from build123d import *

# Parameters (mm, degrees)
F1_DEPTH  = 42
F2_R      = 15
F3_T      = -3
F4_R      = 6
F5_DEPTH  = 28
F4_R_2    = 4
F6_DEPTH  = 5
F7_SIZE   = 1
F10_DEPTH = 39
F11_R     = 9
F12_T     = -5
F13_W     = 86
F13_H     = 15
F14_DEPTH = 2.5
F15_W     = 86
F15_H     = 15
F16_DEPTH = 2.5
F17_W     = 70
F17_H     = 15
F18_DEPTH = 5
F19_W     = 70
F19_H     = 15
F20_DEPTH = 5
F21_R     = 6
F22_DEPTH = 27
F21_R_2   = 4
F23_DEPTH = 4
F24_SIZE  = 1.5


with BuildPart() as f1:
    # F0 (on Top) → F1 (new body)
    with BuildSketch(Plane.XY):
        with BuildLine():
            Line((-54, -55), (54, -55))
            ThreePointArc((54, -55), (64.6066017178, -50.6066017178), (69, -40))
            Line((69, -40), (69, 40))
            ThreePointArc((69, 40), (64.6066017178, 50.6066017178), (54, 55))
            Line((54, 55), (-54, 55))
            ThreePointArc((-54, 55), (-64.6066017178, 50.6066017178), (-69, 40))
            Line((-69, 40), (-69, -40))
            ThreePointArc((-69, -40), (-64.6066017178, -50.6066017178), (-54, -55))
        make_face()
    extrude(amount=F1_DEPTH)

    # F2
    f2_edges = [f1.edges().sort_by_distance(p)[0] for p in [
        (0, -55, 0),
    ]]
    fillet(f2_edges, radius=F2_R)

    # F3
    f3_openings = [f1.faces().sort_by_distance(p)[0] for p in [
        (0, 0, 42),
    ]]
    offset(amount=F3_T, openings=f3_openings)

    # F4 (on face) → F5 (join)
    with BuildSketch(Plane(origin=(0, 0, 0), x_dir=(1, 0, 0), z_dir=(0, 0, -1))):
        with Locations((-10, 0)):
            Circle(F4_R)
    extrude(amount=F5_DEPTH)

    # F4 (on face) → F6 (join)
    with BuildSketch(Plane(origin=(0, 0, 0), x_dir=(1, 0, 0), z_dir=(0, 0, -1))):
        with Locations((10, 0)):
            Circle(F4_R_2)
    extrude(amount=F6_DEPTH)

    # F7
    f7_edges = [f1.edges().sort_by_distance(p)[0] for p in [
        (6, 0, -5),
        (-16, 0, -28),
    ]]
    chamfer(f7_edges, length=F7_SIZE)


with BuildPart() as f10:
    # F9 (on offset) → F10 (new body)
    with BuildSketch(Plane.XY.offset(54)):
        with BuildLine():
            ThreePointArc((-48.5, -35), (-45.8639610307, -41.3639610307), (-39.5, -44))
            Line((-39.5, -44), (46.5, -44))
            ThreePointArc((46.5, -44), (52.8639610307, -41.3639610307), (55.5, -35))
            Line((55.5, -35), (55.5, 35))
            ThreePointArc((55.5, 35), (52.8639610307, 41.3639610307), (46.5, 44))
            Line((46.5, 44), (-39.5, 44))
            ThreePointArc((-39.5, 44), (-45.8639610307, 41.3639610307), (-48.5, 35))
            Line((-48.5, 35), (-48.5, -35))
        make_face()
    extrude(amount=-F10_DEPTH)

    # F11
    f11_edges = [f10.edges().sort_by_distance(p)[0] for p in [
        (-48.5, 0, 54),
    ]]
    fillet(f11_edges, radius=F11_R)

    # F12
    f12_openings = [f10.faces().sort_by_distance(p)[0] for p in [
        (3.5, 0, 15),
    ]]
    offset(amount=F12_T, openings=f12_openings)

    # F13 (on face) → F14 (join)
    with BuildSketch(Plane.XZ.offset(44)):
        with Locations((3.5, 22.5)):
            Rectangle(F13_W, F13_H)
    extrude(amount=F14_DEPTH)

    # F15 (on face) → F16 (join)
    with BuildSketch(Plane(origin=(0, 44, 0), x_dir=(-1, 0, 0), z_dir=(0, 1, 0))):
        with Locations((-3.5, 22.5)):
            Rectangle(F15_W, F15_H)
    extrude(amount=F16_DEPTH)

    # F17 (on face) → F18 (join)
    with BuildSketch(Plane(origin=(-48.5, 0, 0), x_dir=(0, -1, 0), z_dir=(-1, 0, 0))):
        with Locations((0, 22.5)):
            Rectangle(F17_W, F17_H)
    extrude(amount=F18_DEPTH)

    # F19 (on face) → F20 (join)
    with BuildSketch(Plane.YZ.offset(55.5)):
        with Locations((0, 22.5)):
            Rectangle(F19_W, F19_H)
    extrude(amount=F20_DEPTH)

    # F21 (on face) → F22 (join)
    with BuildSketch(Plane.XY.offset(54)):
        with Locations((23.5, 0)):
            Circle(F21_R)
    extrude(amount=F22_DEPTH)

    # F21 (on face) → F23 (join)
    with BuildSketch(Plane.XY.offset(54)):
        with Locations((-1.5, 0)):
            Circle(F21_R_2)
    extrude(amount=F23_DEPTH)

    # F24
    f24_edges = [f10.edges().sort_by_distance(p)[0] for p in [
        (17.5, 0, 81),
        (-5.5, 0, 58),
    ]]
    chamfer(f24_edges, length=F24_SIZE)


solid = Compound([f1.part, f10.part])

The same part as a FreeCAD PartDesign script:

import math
import FreeCAD as App
import Part
import Sketcher


def edges_at(feature, points):
    """Names of the edges that pass closest to the given points."""
    edges = feature.Shape.Edges
    near = lambda p: min(range(len(edges)), key=lambda i: edges[i].distToShape(Part.Vertex(*p))[0])
    return sorted({f"Edge{near(p) + 1}" for p in points})


def faces_at(feature, points):
    """Names of the faces that lie closest to the given points."""
    faces = feature.Shape.Faces
    near = lambda p: min(range(len(faces)), key=lambda i: faces[i].distToShape(Part.Vertex(*p))[0])
    return sorted({f"Face{near(p) + 1}" for p in points})


def add_polygon(sketch, points):
    """Adds a closed chain of lines whose ends are joined by coincident constraints."""
    first, n = sketch.GeometryCount, len(points)
    for a, b in zip(points, points[1:] + points[:1]):
        sketch.addGeometry(Part.LineSegment(App.Vector(*a, 0), App.Vector(*b, 0)), False)
    for i in range(n):
        sketch.addConstraint(Sketcher.Constraint("Coincident", first + i, 2, first + (i + 1) % n, 1))

doc = App.newDocument("Part")
body = doc.addObject("PartDesign::Body", "Body")

# Sketch on XY plane
sketch1 = body.newObject("Sketcher::SketchObject", "Sketch")
sketch1.AttachmentSupport = (doc.getObject("XY_Plane"), [""])
sketch1.MapMode = "FlatFace"
sketch1.addGeometry([
    Part.LineSegment(App.Vector(-54, -55, 0), App.Vector(54, -55, 0)),  # 0
    Part.ArcOfCircle(Part.Circle(App.Vector(54, -40, 0), App.Vector(0, 0, 1), 15), math.radians(-90), math.radians(0)),  # 1
    Part.LineSegment(App.Vector(69, -40, 0), App.Vector(69, 40, 0)),  # 2
    Part.ArcOfCircle(Part.Circle(App.Vector(54, 40, 0), App.Vector(0, 0, 1), 15), math.radians(0), math.radians(90)),  # 3
    Part.LineSegment(App.Vector(54, 55, 0), App.Vector(-54, 55, 0)),  # 4
    Part.ArcOfCircle(Part.Circle(App.Vector(-54, 40, 0), App.Vector(0, 0, 1), 15), math.radians(90), math.radians(180)),  # 5
    Part.LineSegment(App.Vector(-69, 40, 0), App.Vector(-69, -40, 0)),  # 6
    Part.ArcOfCircle(Part.Circle(App.Vector(-54, -40, 0), App.Vector(0, 0, 1), 15), math.radians(180), math.radians(270)),  # 7
], False)
sketch1.addConstraint([
    Sketcher.Constraint("Tangent", 0, 2, 1, 1),
    Sketcher.Constraint("Tangent", 1, 2, 2, 1),
    Sketcher.Constraint("Tangent", 2, 2, 3, 1),
    Sketcher.Constraint("Tangent", 3, 2, 4, 1),
    Sketcher.Constraint("Tangent", 4, 2, 5, 1),
    Sketcher.Constraint("Tangent", 5, 2, 6, 1),
    Sketcher.Constraint("Tangent", 6, 2, 7, 1),
    Sketcher.Constraint("Tangent", 7, 2, 0, 1),
    Sketcher.Constraint("Horizontal", 0),
    Sketcher.Constraint("Vertical", 2),
    Sketcher.Constraint("Horizontal", 4),
    Sketcher.Constraint("Vertical", 6),
    Sketcher.Constraint("Equal", 1, 3),
    Sketcher.Constraint("Equal", 3, 5),
    Sketcher.Constraint("Equal", 5, 7),
    Sketcher.Constraint("Symmetric", 1, 3, 5, 3, -1, 1),
    Sketcher.Constraint("Radius", 1, 15.0),
    Sketcher.Constraint("DistanceX", 0, 1, 0, 2, 108.0),
    Sketcher.Constraint("DistanceY", 2, 1, 2, 2, 80.0),
])
pad1 = body.newObject("PartDesign::Pad", "Pad")
pad1.Profile = sketch1
pad1.Length = 42
doc.recompute()

fillet = body.newObject("PartDesign::Fillet", "Fillet")
fillet.Base = (pad1, edges_at(pad1, [(0, -55, 0)]))
fillet.Radius = 15
doc.recompute()

thickness = body.newObject("PartDesign::Thickness", "Thickness")
thickness.Base = (fillet, faces_at(fillet, [(0, 0, 42)]))
thickness.Value = 3
thickness.Reversed = True
thickness.Join = "Arc"

# Sketch on XY plane
sketch2 = body.newObject("Sketcher::SketchObject", "Sketch001")
sketch2.AttachmentSupport = (doc.getObject("XY_Plane"), [""])
sketch2.MapMode = "FlatFace"
sketch2.addGeometry(Part.Circle(App.Vector(-10, 0, 0), App.Vector(0, 0, 1), 6), False)
sketch2.addConstraint([
    Sketcher.Constraint("PointOnObject", 0, 3, -1),
    Sketcher.Constraint("Diameter", 0, 12.0),
    Sketcher.Constraint("DistanceX", 0, 3, -1, 1, 10.0),
])
pad2 = body.newObject("PartDesign::Pad", "Pad001")
pad2.Profile = sketch2
pad2.Length = 28
pad2.Reversed = True

# Sketch on XY plane
sketch3 = body.newObject("Sketcher::SketchObject", "Sketch002")
sketch3.AttachmentSupport = (doc.getObject("XY_Plane"), [""])
sketch3.MapMode = "FlatFace"
sketch3.addGeometry(Part.Circle(App.Vector(10, 0, 0), App.Vector(0, 0, 1), 4), False)
sketch3.addConstraint([
    Sketcher.Constraint("PointOnObject", 0, 3, -1),
    Sketcher.Constraint("Diameter", 0, 8.0),
    Sketcher.Constraint("DistanceX", -1, 1, 0, 3, 10.0),
])
pad3 = body.newObject("PartDesign::Pad", "Pad002")
pad3.Profile = sketch3
pad3.Length = 5
pad3.Reversed = True
doc.recompute()

chamfer = body.newObject("PartDesign::Chamfer", "Chamfer")
chamfer.Base = (pad3, edges_at(pad3, [(6, 0, -5), (-16, 0, -28)]))
chamfer.Size = 1
body2 = doc.addObject("PartDesign::Body", "Body001")

# Sketch on XY plane
sketch4 = body2.newObject("Sketcher::SketchObject", "Sketch003")
sketch4.AttachmentSupport = (doc.getObject("XY_Plane001"), [""])
sketch4.MapMode = "FlatFace"
sketch4.AttachmentOffset = App.Placement(App.Vector(0, 0, 54), App.Rotation())
sketch4.addGeometry([
    Part.ArcOfCircle(Part.Circle(App.Vector(-39.5, -35, 0), App.Vector(0, 0, 1), 9), math.radians(180), math.radians(270)),  # 0
    Part.LineSegment(App.Vector(-39.5, -44, 0), App.Vector(46.5, -44, 0)),  # 1
    Part.ArcOfCircle(Part.Circle(App.Vector(46.5, -35, 0), App.Vector(0, 0, 1), 9), math.radians(-90), math.radians(0)),  # 2
    Part.LineSegment(App.Vector(55.5, -35, 0), App.Vector(55.5, 35, 0)),  # 3
    Part.ArcOfCircle(Part.Circle(App.Vector(46.5, 35, 0), App.Vector(0, 0, 1), 9), math.radians(0), math.radians(90)),  # 4
    Part.LineSegment(App.Vector(46.5, 44, 0), App.Vector(-39.5, 44, 0)),  # 5
    Part.ArcOfCircle(Part.Circle(App.Vector(-39.5, 35, 0), App.Vector(0, 0, 1), 9), math.radians(90), math.radians(180)),  # 6
    Part.LineSegment(App.Vector(-48.5, 35, 0), App.Vector(-48.5, -35, 0)),  # 7
], False)
sketch4.addConstraint([
    Sketcher.Constraint("Tangent", 0, 2, 1, 1),
    Sketcher.Constraint("Tangent", 1, 2, 2, 1),
    Sketcher.Constraint("Tangent", 2, 2, 3, 1),
    Sketcher.Constraint("Tangent", 3, 2, 4, 1),
    Sketcher.Constraint("Tangent", 4, 2, 5, 1),
    Sketcher.Constraint("Tangent", 5, 2, 6, 1),
    Sketcher.Constraint("Tangent", 6, 2, 7, 1),
    Sketcher.Constraint("Tangent", 7, 2, 0, 1),
    Sketcher.Constraint("Horizontal", 1),
    Sketcher.Constraint("Vertical", 3),
    Sketcher.Constraint("Horizontal", 5),
    Sketcher.Constraint("Vertical", 7),
    Sketcher.Constraint("Equal", 0, 2),
    Sketcher.Constraint("Equal", 2, 4),
    Sketcher.Constraint("Equal", 4, 6),
    Sketcher.Constraint("Radius", 0, 9.0),
    Sketcher.Constraint("DistanceX", 1, 1, 1, 2, 86.0),
    Sketcher.Constraint("DistanceY", 3, 1, 3, 2, 70.0),
    Sketcher.Constraint("DistanceY", 0, 3, -1, 1, 35.0),
    Sketcher.Constraint("DistanceX", 0, 3, -1, 1, 39.5),
])
pad4 = body2.newObject("PartDesign::Pad", "Pad003")
pad4.Profile = sketch4
pad4.Length = 39
pad4.Reversed = True
doc.recompute()

fillet2 = body2.newObject("PartDesign::Fillet", "Fillet001")
fillet2.Base = (pad4, edges_at(pad4, [(-48.5, 0, 54)]))
fillet2.Radius = 9
doc.recompute()

thickness2 = body2.newObject("PartDesign::Thickness", "Thickness001")
thickness2.Base = (fillet2, faces_at(fillet2, [(3.5, 0, 15)]))
thickness2.Value = 5
thickness2.Reversed = True
thickness2.Join = "Arc"

# Sketch on XZ plane
sketch5 = body2.newObject("Sketcher::SketchObject", "Sketch004")
sketch5.AttachmentSupport = (doc.getObject("XZ_Plane001"), [""])
sketch5.MapMode = "FlatFace"
sketch5.AttachmentOffset = App.Placement(App.Vector(0, 0, 44), App.Rotation())
add_polygon(sketch5, [(-39.5, 30), (-39.5, 15), (46.5, 15), (46.5, 30)])  # lines 0-3
sketch5.addConstraint([
    Sketcher.Constraint("Vertical", 0),
    Sketcher.Constraint("Horizontal", 1),
    Sketcher.Constraint("Vertical", 2),
    Sketcher.Constraint("Horizontal", 3),
    Sketcher.Constraint("DistanceX", 1, 1, 1, 2, 86.0),
    Sketcher.Constraint("DistanceY", 0, 2, 0, 1, 15.0),
    Sketcher.Constraint("DistanceY", -1, 1, 0, 2, 15.0),
    Sketcher.Constraint("DistanceX", 0, 2, -1, 1, 39.5),
])
pad5 = body2.newObject("PartDesign::Pad", "Pad004")
pad5.Profile = sketch5
pad5.Length = 2.5

# Sketch on XZ plane
sketch6 = body2.newObject("Sketcher::SketchObject", "Sketch005")
sketch6.AttachmentSupport = (doc.getObject("XZ_Plane001"), [""])
sketch6.MapMode = "FlatFace"
sketch6.AttachmentOffset = App.Placement(App.Vector(0, 0, -44), App.Rotation())
add_polygon(sketch6, [(46.5, 30), (46.5, 15), (-39.5, 15), (-39.5, 30)])  # lines 0-3
sketch6.addConstraint([
    Sketcher.Constraint("Vertical", 0),
    Sketcher.Constraint("Horizontal", 1),
    Sketcher.Constraint("Vertical", 2),
    Sketcher.Constraint("Horizontal", 3),
    Sketcher.Constraint("DistanceX", 1, 2, 1, 1, 86.0),
    Sketcher.Constraint("DistanceY", 0, 2, 0, 1, 15.0),
    Sketcher.Constraint("DistanceY", -1, 1, 0, 2, 15.0),
    Sketcher.Constraint("DistanceX", -1, 1, 0, 2, 46.5),
])
pad6 = body2.newObject("PartDesign::Pad", "Pad005")
pad6.Profile = sketch6
pad6.Length = 2.5
pad6.Reversed = True

# Sketch on YZ plane
sketch7 = body2.newObject("Sketcher::SketchObject", "Sketch006")
sketch7.AttachmentSupport = (doc.getObject("YZ_Plane001"), [""])
sketch7.MapMode = "FlatFace"
sketch7.AttachmentOffset = App.Placement(App.Vector(0, 0, -48.5), App.Rotation())
add_polygon(sketch7, [(35, 30), (35, 15), (-35, 15), (-35, 30)])  # lines 0-3
sketch7.addConstraint([
    Sketcher.Constraint("Vertical", 0),
    Sketcher.Constraint("Horizontal", 1),
    Sketcher.Constraint("Vertical", 2),
    Sketcher.Constraint("Horizontal", 3),
    Sketcher.Constraint("DistanceX", 1, 2, 1, 1, 70.0),
    Sketcher.Constraint("DistanceY", 0, 2, 0, 1, 15.0),
    Sketcher.Constraint("DistanceX", -1, 1, 0, 2, 35.0),
    Sketcher.Constraint("DistanceY", -1, 1, 0, 2, 15.0),
])
pad7 = body2.newObject("PartDesign::Pad", "Pad006")
pad7.Profile = sketch7
pad7.Length = 5
pad7.Reversed = True

# Sketch on YZ plane
sketch8 = body2.newObject("Sketcher::SketchObject", "Sketch007")
sketch8.AttachmentSupport = (doc.getObject("YZ_Plane001"), [""])
sketch8.MapMode = "FlatFace"
sketch8.AttachmentOffset = App.Placement(App.Vector(0, 0, 55.5), App.Rotation())
add_polygon(sketch8, [(-35, 30), (-35, 15), (35, 15), (35, 30)])  # lines 0-3
sketch8.addConstraint([
    Sketcher.Constraint("Vertical", 0),
    Sketcher.Constraint("Horizontal", 1),
    Sketcher.Constraint("Vertical", 2),
    Sketcher.Constraint("Horizontal", 3),
    Sketcher.Constraint("DistanceX", 1, 1, 1, 2, 70.0),
    Sketcher.Constraint("DistanceY", 0, 2, 0, 1, 15.0),
    Sketcher.Constraint("DistanceX", 0, 2, -1, 1, 35.0),
    Sketcher.Constraint("DistanceY", -1, 1, 0, 2, 15.0),
])
pad8 = body2.newObject("PartDesign::Pad", "Pad007")
pad8.Profile = sketch8
pad8.Length = 5

# Sketch on XY plane
sketch9 = body2.newObject("Sketcher::SketchObject", "Sketch008")
sketch9.AttachmentSupport = (doc.getObject("XY_Plane001"), [""])
sketch9.MapMode = "FlatFace"
sketch9.AttachmentOffset = App.Placement(App.Vector(0, 0, 54), App.Rotation())
sketch9.addGeometry(Part.Circle(App.Vector(23.5, 0, 0), App.Vector(0, 0, 1), 6), False)
sketch9.addConstraint([
    Sketcher.Constraint("PointOnObject", 0, 3, -1),
    Sketcher.Constraint("Diameter", 0, 12.0),
    Sketcher.Constraint("DistanceX", -1, 1, 0, 3, 23.5),
])
pad9 = body2.newObject("PartDesign::Pad", "Pad008")
pad9.Profile = sketch9
pad9.Length = 27

# Sketch on XY plane
sketch10 = body2.newObject("Sketcher::SketchObject", "Sketch009")
sketch10.AttachmentSupport = (doc.getObject("XY_Plane001"), [""])
sketch10.MapMode = "FlatFace"
sketch10.AttachmentOffset = App.Placement(App.Vector(0, 0, 54), App.Rotation())
sketch10.addGeometry(Part.Circle(App.Vector(-1.5, 0, 0), App.Vector(0, 0, 1), 4), False)
sketch10.addConstraint([
    Sketcher.Constraint("PointOnObject", 0, 3, -1),
    Sketcher.Constraint("Diameter", 0, 8.0),
    Sketcher.Constraint("DistanceX", 0, 3, -1, 1, 1.5),
])
pad10 = body2.newObject("PartDesign::Pad", "Pad009")
pad10.Profile = sketch10
pad10.Length = 4
doc.recompute()

chamfer2 = body2.newObject("PartDesign::Chamfer", "Chamfer001")
chamfer2.Base = (pad10, edges_at(pad10, [(17.5, 0, 81), (-5.5, 0, 58)]))
chamfer2.Size = 1.5

doc.recompute()
